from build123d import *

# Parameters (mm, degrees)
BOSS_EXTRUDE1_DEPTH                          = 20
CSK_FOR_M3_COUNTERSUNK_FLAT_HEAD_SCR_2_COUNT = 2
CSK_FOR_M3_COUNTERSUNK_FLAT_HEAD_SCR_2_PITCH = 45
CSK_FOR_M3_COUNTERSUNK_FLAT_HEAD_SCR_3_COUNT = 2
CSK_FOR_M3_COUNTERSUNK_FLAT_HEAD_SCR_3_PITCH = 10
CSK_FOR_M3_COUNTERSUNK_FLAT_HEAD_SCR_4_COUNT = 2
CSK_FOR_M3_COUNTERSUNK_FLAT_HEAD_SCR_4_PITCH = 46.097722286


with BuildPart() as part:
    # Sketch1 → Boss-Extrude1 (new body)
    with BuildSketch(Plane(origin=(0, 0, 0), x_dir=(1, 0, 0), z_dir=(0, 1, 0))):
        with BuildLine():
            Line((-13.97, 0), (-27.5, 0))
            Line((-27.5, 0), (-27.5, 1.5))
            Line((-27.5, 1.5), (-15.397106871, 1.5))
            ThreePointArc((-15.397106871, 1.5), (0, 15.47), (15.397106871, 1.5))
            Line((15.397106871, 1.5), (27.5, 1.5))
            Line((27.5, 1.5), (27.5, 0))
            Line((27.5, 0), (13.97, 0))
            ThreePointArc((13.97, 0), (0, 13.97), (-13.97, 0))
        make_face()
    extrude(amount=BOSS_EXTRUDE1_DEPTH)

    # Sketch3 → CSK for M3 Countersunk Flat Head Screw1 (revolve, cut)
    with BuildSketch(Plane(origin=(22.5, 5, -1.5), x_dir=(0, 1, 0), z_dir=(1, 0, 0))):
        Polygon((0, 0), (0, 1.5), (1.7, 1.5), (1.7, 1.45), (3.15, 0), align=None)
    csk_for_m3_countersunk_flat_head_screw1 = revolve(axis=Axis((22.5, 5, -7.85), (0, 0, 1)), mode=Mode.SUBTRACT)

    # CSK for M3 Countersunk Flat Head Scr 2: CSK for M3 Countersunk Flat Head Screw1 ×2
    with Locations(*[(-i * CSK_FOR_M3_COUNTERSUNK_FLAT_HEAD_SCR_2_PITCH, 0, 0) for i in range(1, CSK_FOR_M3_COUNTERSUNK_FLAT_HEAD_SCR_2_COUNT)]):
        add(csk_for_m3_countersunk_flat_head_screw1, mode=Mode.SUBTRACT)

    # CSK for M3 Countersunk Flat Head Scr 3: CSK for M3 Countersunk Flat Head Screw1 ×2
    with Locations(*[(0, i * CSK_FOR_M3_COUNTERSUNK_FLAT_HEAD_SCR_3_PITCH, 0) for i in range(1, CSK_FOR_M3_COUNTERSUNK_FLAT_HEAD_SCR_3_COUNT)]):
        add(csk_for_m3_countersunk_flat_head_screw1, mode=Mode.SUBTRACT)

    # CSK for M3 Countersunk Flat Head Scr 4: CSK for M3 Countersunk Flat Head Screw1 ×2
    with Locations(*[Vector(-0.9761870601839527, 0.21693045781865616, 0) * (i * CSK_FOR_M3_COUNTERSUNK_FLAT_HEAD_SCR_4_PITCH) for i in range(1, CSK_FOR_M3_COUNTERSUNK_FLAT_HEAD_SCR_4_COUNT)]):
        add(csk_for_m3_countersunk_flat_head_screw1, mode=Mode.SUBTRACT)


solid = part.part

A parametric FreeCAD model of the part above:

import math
import FreeCAD as App
import Part
import Sketcher
Q = App.Units.Quantity

doc = App.newDocument("Part")
body = doc.addObject("PartDesign::Body", "Body")

sketch1 = body.newObject("Sketcher::SketchObject", "Sketch")
sketch1.AttachmentSupport = (doc.getObject("XZ_Plane"), [""])
sketch1.MapMode = "FlatFace"
sketch1.addGeometry(Part.LineSegment(App.Vector(-27.5, 0, 0), App.Vector(-14, 0, 0)), False)
sketch1.addGeometry(Part.ArcOfCircle(Part.Circle(App.Vector(0, 0, 0), App.Vector(0, 0, 1), 14), math.radians(180), math.radians(360)), False)
sketch1.addGeometry(Part.LineSegment(App.Vector(14, 0, 0), App.Vector(27.5, 0, 0)), False)
sketch1.addGeometry(Part.LineSegment(App.Vector(27.5, 0, 0), App.Vector(27.5, -1.5, 0)), False)
sketch1.addGeometry(Part.LineSegment(App.Vector(27.5, -1.5, 0), App.Vector(15.4, -1.5, 0)), False)
sketch1.addGeometry(Part.ArcOfCircle(Part.Circle(App.Vector(0, 0, 0), App.Vector(0, 0, 1), 15.5), math.radians(-174), math.radians(-6)), False)
sketch1.addGeometry(Part.LineSegment(App.Vector(-15.4, -1.5, 0), App.Vector(-27.5, -1.5, 0)), False)
sketch1.addGeometry(Part.LineSegment(App.Vector(-27.5, -1.5, 0), App.Vector(-27.5, 0, 0)), False)
sketch1.addConstraint(Sketcher.Constraint("Coincident", 0, 2, 1, 1))
sketch1.addConstraint(Sketcher.Constraint("Coincident", 1, 2, 2, 1))
sketch1.addConstraint(Sketcher.Constraint("Coincident", 2, 2, 3, 1))
sketch1.addConstraint(Sketcher.Constraint("Coincident", 3, 2, 4, 1))
sketch1.addConstraint(Sketcher.Constraint("Coincident", 4, 2, 5, 2))
sketch1.addConstraint(Sketcher.Constraint("Coincident", 5, 1, 6, 1))
sketch1.addConstraint(Sketcher.Constraint("Coincident", 6, 2, 7, 1))
sketch1.addConstraint(Sketcher.Constraint("Coincident", 7, 2, 0, 1))
sketch1.addConstraint(Sketcher.Constraint("Horizontal", 0))
sketch1.addConstraint(Sketcher.Constraint("Horizontal", 2))
sketch1.addConstraint(Sketcher.Constraint("Vertical", 3))
sketch1.addConstraint(Sketcher.Constraint("Horizontal", 4))
sketch1.addConstraint(Sketcher.Constraint("Horizontal", 6))
sketch1.addConstraint(Sketcher.Constraint("Vertical", 7))
sketch1.addConstraint(Sketcher.Constraint("Coincident", 1, 3, -1, 1))
sketch1.addConstraint(Sketcher.Constraint("Coincident", 5, 3, -1, 1))
sketch1.addConstraint(Sketcher.Constraint("Symmetric", 2, 2, 7, 2, -1, 1))
sketch1.addConstraint(Sketcher.Constraint("PointOnObject", 0, 2, -1))
sketch1.addConstraint(Sketcher.Constraint("Horizontal", 4, 2, 5, 1))
sketch1.addConstraint(Sketcher.Constraint("Radius", 1, 13.97))
sketch1.addConstraint(Sketcher.Constraint("Radius", 5, 15.47))
sketch1.addConstraint(Sketcher.Constraint("DistanceY", 3, 2, 3, 1, 1.5))
sketch1.addConstraint(Sketcher.Constraint("DistanceX", 0, 1, 0, 2, 13.53))
pad1 = body.newObject("PartDesign::Pad", "Pad")
pad1.Profile = sketch1
pad1.Length = 20
pad1.Reversed = True

sketch2 = body.newObject("Sketcher::SketchObject", "Sketch001")
sketch2.AttachmentSupport = (doc.getObject("YZ_Plane"), [""])
sketch2.MapMode = "FlatFace"
sketch2.AttachmentOffset = App.Placement(App.Vector(0, 0, 22.5), App.Rotation())
sketch2.addGeometry(Part.LineSegment(App.Vector(5, 0, 0), App.Vector(5, -1.5, 0)), False)
sketch2.addGeometry(Part.LineSegment(App.Vector(5, -1.5, 0), App.Vector(8.15, -1.5, 0)), False)
sketch2.addGeometry(Part.LineSegment(App.Vector(8.15, -1.5, 0), App.Vector(6.7, -0.05, 0)), False)
sketch2.addGeometry(Part.LineSegment(App.Vector(6.7, -0.05, 0), App.Vector(6.7, 0, 0)), False)
sketch2.addGeometry(Part.LineSegment(App.Vector(6.7, 0, 0), App.Vector(5, 0, 0)), False)
sketch2.addGeometry(Part.LineSegment(App.Vector(5, -1.5, 0), App.Vector(5, 0, 0)), True)
sketch2.addConstraint(Sketcher.Constraint("Coincident", 0, 2, 1, 1))
sketch2.addConstraint(Sketcher.Constraint("Coincident", 1, 2, 2, 1))
sketch2.addConstraint(Sketcher.Constraint("Coincident", 2, 2, 3, 1))
sketch2.addConstraint(Sketcher.Constraint("Coincident", 3, 2, 4, 1))
sketch2.addConstraint(Sketcher.Constraint("Coincident", 4, 2, 0, 1))
sketch2.addConstraint(Sketcher.Constraint("Vertical", 0))
sketch2.addConstraint(Sketcher.Constraint("Horizontal", 1))
sketch2.addConstraint(Sketcher.Constraint("Vertical", 3))
sketch2.addConstraint(Sketcher.Constraint("Horizontal", 4))
sketch2.addConstraint(Sketcher.Constraint("Vertical", 5))
sketch2.addConstraint(Sketcher.Constraint("Coincident", 5, 1, 0, 2))
sketch2.addConstraint(Sketcher.Constraint("PointOnObject", 3, 2, -1))
sketch2.addConstraint(Sketcher.Constraint("PointOnObject", 5, 2, -1))
sketch2.addConstraint(Sketcher.Constraint("Angle", 2, Q("135 deg")))
sketch2.addConstraint(Sketcher.Constraint("DistanceX", 4, 2, 4, 1, 1.7))
sketch2.addConstraint(Sketcher.Constraint("DistanceY", 0, 2, 0, 1, 1.5))
sketch2.addConstraint(Sketcher.Constraint("DistanceX", -1, 1, 0, 2, 5.0))
sketch2.addConstraint(Sketcher.Constraint("DistanceX", 1, 1, 1, 2, 3.15))
groove = body.newObject("PartDesign::Groove", "Groove")
groove.Profile = sketch2
groove.ReferenceAxis = (sketch2, ["Axis0"])
groove.Angle = 360
doc.recompute()

linearpattern = body.newObject("PartDesign::LinearPattern", "LinearPattern")
linearpattern.Originals = [groove]
linearpattern.Direction = (doc.getObject("X_Axis"), [""])
linearpattern.Mode = "offset"
linearpattern.Offset = 45
linearpattern.Occurrences = 2
linearpattern.Reversed = True
body.Tip = linearpattern
doc.recompute()

linearpattern2 = body.newObject("PartDesign::LinearPattern", "LinearPattern001")
linearpattern2.Originals = [groove]
linearpattern2.Direction = (doc.getObject("Y_Axis"), [""])
linearpattern2.Mode = "offset"
linearpattern2.Offset = 10
linearpattern2.Occurrences = 2
body.Tip = linearpattern2
doc.recompute()

datumline = body.newObject("PartDesign::Line", "DatumLine")
datumline.Placement = App.Placement(App.Vector(0, 0, 0), App.Rotation(App.Vector(0, 0, 1), App.Vector(-0.97618706, 0.216930458, 0)))
linearpattern3 = body.newObject("PartDesign::LinearPattern", "LinearPattern002")
linearpattern3.Originals = [groove]
linearpattern3.Direction = (datumline, [""])
linearpattern3.Mode = "offset"
linearpattern3.Offset = 46.097722
linearpattern3.Occurrences = 2
body.Tip = linearpattern3

doc.recompute()
